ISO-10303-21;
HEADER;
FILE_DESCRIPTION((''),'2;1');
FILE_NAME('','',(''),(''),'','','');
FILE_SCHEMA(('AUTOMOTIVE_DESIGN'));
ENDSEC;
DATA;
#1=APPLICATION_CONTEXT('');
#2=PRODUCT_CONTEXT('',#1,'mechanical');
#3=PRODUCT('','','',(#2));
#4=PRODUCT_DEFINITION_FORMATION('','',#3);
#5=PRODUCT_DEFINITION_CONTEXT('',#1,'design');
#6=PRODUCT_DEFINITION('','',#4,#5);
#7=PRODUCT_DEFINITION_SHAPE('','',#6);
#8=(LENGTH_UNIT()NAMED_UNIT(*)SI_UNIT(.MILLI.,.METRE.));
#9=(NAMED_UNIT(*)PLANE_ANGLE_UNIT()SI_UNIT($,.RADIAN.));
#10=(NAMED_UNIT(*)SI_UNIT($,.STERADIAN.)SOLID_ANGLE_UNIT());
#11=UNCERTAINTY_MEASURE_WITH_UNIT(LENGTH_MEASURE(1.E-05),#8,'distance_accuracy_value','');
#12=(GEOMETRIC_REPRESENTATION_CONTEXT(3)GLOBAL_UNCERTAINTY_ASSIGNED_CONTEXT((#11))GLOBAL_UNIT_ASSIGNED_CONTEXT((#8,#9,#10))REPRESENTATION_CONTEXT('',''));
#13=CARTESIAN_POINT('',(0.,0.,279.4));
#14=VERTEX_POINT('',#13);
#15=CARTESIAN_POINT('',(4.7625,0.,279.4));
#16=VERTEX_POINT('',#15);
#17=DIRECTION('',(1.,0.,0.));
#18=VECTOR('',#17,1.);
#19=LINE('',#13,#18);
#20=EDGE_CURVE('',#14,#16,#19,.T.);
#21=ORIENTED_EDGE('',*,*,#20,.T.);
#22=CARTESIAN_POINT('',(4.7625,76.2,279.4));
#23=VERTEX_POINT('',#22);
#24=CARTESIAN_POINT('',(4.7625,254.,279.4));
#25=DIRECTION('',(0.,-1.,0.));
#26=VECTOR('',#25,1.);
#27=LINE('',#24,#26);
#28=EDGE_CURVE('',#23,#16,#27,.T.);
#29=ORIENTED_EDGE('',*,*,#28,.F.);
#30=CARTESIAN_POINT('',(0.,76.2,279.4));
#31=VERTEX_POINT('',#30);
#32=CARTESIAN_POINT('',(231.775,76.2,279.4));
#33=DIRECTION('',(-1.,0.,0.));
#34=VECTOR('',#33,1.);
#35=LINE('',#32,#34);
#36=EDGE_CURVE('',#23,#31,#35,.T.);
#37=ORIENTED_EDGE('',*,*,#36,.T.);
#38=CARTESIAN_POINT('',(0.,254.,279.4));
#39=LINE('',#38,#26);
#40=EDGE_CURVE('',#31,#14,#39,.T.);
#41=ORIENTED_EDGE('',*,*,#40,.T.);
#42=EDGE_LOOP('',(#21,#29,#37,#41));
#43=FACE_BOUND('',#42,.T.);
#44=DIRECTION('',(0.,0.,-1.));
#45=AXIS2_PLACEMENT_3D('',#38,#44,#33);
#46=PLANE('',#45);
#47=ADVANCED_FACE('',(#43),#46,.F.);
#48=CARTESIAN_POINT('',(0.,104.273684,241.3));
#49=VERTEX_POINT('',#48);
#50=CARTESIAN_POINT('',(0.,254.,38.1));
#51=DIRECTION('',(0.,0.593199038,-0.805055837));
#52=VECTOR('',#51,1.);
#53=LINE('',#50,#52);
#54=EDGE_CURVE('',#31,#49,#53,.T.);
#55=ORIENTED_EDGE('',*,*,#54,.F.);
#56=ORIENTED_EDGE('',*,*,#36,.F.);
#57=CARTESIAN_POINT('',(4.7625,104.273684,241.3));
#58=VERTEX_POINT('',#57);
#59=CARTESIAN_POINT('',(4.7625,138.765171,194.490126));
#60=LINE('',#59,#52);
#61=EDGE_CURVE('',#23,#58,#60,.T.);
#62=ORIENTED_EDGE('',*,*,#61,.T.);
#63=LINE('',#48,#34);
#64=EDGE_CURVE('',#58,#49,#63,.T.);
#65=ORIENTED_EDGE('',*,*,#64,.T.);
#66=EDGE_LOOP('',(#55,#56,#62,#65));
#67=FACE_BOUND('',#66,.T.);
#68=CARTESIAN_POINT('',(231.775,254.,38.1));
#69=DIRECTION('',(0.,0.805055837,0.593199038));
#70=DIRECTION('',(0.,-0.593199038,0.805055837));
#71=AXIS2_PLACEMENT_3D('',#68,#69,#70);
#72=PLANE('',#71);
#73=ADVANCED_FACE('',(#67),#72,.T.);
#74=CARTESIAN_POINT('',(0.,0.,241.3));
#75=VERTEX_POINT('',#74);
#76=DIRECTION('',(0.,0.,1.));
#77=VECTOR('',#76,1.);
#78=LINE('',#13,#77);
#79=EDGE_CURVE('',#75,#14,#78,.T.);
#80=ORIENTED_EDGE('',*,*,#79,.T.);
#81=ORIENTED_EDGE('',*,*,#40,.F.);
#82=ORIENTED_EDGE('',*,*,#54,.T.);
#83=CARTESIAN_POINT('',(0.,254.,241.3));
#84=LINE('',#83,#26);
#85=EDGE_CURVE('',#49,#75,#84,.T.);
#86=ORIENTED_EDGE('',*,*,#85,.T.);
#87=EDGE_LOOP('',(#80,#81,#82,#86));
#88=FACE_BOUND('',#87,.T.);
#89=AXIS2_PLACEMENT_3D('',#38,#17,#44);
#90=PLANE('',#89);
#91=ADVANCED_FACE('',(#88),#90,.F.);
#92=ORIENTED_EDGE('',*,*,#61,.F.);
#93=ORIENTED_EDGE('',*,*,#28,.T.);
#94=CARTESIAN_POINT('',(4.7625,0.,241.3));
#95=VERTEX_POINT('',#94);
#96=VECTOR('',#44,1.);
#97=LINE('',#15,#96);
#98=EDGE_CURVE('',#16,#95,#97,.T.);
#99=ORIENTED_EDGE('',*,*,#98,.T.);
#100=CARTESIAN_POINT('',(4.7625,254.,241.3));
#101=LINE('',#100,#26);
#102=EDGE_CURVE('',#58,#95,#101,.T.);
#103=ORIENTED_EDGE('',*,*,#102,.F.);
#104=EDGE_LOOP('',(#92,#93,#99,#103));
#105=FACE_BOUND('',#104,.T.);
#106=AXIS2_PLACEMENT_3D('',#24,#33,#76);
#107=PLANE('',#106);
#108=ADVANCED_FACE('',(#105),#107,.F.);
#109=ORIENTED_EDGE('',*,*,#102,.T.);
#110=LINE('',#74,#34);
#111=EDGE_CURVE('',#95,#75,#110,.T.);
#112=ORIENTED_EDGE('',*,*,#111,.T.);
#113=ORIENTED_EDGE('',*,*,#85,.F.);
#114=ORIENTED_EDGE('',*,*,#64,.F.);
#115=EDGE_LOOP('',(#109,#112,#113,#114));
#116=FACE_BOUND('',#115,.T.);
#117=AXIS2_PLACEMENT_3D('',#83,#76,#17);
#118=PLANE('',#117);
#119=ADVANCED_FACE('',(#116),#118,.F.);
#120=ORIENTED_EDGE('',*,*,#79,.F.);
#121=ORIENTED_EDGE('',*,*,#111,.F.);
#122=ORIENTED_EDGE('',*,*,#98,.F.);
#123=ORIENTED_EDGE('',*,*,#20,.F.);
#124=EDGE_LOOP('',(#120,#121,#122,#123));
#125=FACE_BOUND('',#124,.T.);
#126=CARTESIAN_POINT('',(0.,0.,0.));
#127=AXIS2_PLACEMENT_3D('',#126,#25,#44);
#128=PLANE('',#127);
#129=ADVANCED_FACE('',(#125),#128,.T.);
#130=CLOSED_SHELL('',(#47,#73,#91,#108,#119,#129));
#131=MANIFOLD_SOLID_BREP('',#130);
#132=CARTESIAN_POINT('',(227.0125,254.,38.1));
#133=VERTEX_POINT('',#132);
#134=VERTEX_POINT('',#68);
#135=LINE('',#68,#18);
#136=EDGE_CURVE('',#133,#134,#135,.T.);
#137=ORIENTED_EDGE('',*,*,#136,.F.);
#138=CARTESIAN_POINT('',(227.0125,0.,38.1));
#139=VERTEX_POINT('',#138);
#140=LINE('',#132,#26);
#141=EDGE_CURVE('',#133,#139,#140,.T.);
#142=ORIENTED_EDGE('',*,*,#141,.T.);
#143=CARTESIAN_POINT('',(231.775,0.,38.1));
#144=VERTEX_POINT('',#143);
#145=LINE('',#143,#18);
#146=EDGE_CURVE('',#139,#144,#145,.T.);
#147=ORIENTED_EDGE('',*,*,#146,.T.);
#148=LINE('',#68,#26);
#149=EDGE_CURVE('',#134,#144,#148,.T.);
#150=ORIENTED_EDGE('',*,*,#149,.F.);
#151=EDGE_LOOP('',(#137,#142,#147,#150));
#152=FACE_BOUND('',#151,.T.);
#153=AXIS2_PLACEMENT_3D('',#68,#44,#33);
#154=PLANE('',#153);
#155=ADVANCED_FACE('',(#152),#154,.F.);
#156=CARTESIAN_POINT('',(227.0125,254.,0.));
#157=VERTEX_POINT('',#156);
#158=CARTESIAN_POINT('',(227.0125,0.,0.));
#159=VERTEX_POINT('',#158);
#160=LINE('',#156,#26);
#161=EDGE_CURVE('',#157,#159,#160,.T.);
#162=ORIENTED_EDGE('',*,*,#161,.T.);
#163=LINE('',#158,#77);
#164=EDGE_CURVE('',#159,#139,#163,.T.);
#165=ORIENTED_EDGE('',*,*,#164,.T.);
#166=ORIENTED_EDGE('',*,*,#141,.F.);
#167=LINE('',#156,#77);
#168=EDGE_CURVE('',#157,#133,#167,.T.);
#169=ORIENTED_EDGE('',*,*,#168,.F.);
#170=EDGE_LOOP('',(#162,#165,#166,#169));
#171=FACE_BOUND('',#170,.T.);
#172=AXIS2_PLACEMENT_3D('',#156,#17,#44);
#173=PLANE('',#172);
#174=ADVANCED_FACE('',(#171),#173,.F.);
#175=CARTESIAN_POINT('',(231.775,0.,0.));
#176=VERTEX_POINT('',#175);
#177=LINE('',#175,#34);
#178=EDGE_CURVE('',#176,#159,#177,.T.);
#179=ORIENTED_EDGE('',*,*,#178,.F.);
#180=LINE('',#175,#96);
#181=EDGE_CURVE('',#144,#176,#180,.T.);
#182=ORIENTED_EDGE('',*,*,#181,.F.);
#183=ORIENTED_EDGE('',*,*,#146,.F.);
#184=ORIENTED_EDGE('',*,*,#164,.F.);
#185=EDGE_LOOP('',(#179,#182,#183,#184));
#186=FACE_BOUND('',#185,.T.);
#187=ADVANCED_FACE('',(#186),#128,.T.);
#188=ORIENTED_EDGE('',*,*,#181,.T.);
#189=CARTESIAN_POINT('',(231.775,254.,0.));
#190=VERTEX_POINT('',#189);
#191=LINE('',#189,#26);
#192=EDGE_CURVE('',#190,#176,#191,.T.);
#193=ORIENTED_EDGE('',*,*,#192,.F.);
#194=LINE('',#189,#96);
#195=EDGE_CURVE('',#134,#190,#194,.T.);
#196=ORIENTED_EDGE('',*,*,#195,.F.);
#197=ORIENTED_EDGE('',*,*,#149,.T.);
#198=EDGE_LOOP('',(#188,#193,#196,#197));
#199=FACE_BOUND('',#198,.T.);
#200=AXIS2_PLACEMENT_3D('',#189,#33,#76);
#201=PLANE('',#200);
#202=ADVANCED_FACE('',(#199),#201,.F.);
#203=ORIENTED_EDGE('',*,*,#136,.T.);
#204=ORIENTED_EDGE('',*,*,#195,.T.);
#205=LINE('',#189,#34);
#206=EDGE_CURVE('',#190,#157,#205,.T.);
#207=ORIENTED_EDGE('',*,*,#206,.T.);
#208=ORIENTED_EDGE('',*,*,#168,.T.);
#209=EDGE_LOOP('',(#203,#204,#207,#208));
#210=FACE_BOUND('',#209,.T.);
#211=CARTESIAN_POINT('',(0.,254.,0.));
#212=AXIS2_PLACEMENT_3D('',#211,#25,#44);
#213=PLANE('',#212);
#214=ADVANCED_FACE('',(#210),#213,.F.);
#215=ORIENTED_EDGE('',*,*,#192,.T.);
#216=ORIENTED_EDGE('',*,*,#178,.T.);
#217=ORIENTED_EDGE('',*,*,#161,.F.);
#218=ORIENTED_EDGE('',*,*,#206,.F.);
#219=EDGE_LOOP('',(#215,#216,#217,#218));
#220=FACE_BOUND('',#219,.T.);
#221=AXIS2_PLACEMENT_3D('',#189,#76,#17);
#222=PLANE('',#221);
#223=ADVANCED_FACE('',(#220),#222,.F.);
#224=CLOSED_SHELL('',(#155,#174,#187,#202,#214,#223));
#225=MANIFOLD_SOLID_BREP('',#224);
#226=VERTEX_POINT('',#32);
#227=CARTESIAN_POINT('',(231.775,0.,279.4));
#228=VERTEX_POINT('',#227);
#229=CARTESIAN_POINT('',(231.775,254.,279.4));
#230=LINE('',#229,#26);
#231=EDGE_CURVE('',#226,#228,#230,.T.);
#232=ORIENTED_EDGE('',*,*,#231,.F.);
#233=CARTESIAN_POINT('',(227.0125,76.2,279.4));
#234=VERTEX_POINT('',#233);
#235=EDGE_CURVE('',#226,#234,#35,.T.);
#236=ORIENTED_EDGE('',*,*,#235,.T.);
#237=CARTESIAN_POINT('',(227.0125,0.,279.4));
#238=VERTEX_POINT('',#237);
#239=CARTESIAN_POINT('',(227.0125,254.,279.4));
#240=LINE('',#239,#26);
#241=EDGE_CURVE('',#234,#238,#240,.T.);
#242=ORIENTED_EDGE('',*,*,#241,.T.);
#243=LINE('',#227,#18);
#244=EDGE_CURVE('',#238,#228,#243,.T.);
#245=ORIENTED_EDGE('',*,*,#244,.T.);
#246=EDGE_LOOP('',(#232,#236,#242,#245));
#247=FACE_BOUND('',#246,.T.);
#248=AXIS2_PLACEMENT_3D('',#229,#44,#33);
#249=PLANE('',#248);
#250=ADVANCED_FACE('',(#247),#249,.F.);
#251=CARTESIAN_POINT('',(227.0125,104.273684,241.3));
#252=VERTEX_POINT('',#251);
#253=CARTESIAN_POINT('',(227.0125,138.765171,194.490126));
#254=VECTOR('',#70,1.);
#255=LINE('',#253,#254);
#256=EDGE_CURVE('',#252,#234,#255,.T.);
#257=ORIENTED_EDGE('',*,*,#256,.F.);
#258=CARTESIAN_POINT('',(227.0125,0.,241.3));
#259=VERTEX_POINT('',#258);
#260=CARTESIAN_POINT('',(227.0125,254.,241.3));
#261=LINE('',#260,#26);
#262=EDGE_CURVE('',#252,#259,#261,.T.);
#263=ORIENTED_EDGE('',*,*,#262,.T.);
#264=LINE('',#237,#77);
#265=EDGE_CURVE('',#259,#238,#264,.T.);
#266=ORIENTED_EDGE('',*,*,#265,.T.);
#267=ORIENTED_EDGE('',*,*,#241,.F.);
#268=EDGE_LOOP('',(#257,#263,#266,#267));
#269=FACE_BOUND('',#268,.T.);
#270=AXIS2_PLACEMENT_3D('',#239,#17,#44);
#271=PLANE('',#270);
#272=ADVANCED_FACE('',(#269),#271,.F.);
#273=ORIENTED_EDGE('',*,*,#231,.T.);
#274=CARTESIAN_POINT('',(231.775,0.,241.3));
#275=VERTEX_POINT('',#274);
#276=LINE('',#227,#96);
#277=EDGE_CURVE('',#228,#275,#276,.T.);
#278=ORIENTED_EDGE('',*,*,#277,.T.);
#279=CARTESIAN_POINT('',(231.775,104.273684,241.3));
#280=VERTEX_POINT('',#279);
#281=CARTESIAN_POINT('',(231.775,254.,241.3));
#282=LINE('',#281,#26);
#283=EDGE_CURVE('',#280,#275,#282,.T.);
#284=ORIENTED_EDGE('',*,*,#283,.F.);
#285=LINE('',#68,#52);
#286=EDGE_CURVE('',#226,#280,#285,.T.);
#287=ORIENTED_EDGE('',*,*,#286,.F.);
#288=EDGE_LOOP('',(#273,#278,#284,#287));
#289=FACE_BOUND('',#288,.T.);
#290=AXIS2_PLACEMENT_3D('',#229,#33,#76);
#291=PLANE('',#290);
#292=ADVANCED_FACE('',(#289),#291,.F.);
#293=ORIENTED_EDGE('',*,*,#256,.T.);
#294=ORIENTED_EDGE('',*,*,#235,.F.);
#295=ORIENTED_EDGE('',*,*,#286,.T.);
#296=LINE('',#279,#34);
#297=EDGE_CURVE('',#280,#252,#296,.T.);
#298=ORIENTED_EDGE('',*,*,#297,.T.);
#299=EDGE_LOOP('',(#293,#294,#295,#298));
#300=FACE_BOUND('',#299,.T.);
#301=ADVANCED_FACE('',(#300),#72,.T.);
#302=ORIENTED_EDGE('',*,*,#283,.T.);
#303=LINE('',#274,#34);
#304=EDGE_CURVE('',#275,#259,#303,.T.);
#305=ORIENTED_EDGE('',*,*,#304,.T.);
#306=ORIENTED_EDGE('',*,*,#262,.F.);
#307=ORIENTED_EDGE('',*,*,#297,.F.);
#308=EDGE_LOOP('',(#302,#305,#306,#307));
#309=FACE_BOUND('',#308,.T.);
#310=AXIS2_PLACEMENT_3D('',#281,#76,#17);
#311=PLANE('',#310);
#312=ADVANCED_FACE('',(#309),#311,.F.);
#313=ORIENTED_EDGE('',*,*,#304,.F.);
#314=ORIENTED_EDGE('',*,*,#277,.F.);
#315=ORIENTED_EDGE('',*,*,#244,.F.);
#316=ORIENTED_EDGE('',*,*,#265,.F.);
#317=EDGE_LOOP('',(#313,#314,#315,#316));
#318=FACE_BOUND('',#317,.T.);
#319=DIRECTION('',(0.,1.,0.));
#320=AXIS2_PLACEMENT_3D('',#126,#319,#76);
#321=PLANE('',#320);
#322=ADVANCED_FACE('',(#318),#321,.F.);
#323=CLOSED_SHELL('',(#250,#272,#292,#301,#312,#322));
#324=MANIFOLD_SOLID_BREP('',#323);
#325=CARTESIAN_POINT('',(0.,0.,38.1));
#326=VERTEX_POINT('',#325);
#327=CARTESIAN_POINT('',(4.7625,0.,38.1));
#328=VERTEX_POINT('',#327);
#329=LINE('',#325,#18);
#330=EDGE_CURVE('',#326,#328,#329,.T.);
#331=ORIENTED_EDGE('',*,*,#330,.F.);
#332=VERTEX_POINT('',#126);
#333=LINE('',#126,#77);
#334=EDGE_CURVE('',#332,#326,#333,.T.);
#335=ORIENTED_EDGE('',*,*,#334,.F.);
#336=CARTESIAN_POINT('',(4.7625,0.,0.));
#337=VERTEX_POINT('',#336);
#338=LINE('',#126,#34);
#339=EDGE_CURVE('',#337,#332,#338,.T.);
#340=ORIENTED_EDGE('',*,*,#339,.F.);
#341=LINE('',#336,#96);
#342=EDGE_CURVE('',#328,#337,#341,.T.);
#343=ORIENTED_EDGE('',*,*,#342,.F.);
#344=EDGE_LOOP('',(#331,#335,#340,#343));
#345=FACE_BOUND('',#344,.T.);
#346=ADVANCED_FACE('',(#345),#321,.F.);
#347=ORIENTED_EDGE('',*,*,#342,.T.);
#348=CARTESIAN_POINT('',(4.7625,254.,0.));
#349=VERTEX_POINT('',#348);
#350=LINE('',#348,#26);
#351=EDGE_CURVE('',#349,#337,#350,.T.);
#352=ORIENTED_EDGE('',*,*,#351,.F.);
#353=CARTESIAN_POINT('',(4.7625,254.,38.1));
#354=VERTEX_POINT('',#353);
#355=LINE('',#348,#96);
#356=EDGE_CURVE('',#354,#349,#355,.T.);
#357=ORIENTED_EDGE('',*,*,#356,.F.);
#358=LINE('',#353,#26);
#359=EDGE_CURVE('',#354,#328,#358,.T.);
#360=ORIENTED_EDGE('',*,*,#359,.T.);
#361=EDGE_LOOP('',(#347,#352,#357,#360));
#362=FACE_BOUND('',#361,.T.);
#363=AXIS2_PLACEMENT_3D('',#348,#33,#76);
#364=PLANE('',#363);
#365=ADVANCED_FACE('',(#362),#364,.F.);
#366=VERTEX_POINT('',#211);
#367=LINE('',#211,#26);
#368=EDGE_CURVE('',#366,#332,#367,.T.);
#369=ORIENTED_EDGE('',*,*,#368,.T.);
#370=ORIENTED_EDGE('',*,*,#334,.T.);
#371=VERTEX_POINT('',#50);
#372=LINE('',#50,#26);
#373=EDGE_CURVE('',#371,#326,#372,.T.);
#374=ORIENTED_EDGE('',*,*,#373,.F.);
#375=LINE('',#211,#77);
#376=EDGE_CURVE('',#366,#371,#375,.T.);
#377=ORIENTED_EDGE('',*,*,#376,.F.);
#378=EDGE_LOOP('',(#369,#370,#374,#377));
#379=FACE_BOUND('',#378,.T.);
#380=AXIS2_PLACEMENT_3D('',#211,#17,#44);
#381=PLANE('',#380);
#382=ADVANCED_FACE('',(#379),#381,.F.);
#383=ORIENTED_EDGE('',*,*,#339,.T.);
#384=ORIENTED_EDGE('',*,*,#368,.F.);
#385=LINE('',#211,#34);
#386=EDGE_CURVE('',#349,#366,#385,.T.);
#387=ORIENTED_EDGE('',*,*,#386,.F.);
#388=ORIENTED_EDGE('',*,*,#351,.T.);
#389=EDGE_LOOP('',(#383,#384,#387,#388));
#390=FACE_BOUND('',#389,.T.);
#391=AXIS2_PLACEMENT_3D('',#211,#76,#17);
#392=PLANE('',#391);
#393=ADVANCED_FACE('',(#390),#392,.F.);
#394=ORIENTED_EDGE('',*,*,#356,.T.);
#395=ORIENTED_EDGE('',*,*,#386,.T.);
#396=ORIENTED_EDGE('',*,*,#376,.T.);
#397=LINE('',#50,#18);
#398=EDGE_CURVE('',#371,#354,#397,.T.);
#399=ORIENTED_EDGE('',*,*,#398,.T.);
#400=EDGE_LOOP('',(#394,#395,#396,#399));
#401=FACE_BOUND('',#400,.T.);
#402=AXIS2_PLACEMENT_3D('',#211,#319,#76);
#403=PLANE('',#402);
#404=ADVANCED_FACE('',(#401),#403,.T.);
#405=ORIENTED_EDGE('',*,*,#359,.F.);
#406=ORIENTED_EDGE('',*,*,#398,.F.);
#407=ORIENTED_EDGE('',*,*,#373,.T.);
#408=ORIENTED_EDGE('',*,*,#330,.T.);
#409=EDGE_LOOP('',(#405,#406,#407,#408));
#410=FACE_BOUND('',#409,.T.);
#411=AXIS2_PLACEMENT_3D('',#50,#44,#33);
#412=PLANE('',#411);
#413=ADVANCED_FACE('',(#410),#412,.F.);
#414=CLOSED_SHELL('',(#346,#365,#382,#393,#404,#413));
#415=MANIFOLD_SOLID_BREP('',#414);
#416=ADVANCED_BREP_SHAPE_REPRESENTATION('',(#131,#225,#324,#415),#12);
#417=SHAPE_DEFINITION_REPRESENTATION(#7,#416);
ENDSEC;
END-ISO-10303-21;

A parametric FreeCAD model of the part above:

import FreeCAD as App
import Part
import Sketcher
from FreeCAD import Vector
Q = App.Units.Quantity

doc = App.newDocument("Part")
body = doc.addObject("PartDesign::Body", "Body")

# Sketch on XZ plane
sketch1 = body.newObject("Sketcher::SketchObject", "Sketch")
sketch1.AttachmentSupport = (doc.getObject("XZ_Plane"), [""])
sketch1.MapMode = "FlatFace"
sketch1.addGeometry(Part.LineSegment(Vector(0, 0, 0), Vector(0, 38.1, 0)), False)
sketch1.addGeometry(Part.LineSegment(Vector(0, 38.1, 0), Vector(4.8, 38.1, 0)), False)
sketch1.addGeometry(Part.LineSegment(Vector(4.8, 38.1, 0), Vector(4.8, 0, 0)), False)
sketch1.addGeometry(Part.LineSegment(Vector(4.8, 0, 0), Vector(0, 0, 0)), False)
sketch1.addConstraint(Sketcher.Constraint("Coincident", 0, 2, 1, 1))
sketch1.addConstraint(Sketcher.Constraint("Coincident", 1, 2, 2, 1))
sketch1.addConstraint(Sketcher.Constraint("Coincident", 2, 2, 3, 1))
sketch1.addConstraint(Sketcher.Constraint("Coincident", 3, 2, 0, 1))
sketch1.addConstraint(Sketcher.Constraint("Vertical", 0))
sketch1.addConstraint(Sketcher.Constraint("Horizontal", 1))
sketch1.addConstraint(Sketcher.Constraint("Vertical", 2))
sketch1.addConstraint(Sketcher.Constraint("Horizontal", 3))
sketch1.addConstraint(Sketcher.Constraint("Coincident", 3, 2, -1, 1))
sketch1.addConstraint(Sketcher.Constraint("DistanceY", 0, 1, 0, 2, Q("1.5 in")))
sketch1.addConstraint(Sketcher.Constraint("DistanceX", 1, 1, 1, 2, Q("0.1875 in")))
pad1 = body.newObject("PartDesign::Pad", "Pad")
pad1.Profile = sketch1
pad1.Length = Q("10 in")
pad1.Reversed = True
body2 = doc.addObject("PartDesign::Body", "Body001")

# Sketch on XZ plane
sketch2 = body2.newObject("Sketcher::SketchObject", "Sketch001")
sketch2.AttachmentSupport = (doc.getObject("XZ_Plane001"), [""])
sketch2.MapMode = "FlatFace"
sketch2.addGeometry(Part.LineSegment(Vector(227, 0, 0), Vector(227, 38.1, 0)), False)
sketch2.addGeometry(Part.LineSegment(Vector(227, 38.1, 0), Vector(231.8, 38.1, 0)), False)
sketch2.addGeometry(Part.LineSegment(Vector(231.8, 38.1, 0), Vector(231.8, 0, 0)), False)
sketch2.addGeometry(Part.LineSegment(Vector(231.8, 0, 0), Vector(227, 0, 0)), False)
sketch2.addConstraint(Sketcher.Constraint("Coincident", 0, 2, 1, 1))
sketch2.addConstraint(Sketcher.Constraint("Coincident", 1, 2, 2, 1))
sketch2.addConstraint(Sketcher.Constraint("Coincident", 2, 2, 3, 1))
sketch2.addConstraint(Sketcher.Constraint("Coincident", 3, 2, 0, 1))
sketch2.addConstraint(Sketcher.Constraint("Vertical", 0))
sketch2.addConstraint(Sketcher.Constraint("Horizontal", 1))
sketch2.addConstraint(Sketcher.Constraint("Vertical", 2))
sketch2.addConstraint(Sketcher.Constraint("Horizontal", 3))
sketch2.addConstraint(Sketcher.Constraint("PointOnObject", 2, 2, -1))
sketch2.addConstraint(Sketcher.Constraint("DistanceY", 0, 1, 0, 2, Q("1.5 in")))
sketch2.addConstraint(Sketcher.Constraint("DistanceX", 1, 1, 1, 2, Q("0.1875 in")))
sketch2.addConstraint(Sketcher.Constraint("DistanceX", -1, 1, 0, 2, Q("8.9375 in")))
pad2 = body2.newObject("PartDesign::Pad", "Pad001")
pad2.Profile = sketch2
pad2.Length = Q("10 in")
pad2.Reversed = True
body3 = doc.addObject("PartDesign::Body", "Body002")

# Sketch on XZ plane
sketch3 = body3.newObject("Sketcher::SketchObject", "Sketch002")
sketch3.AttachmentSupport = (doc.getObject("XZ_Plane002"), [""])
sketch3.MapMode = "FlatFace"
sketch3.addGeometry(Part.LineSegment(Vector(0, 241.3, 0), Vector(0, 279.4, 0)), False)
sketch3.addGeometry(Part.LineSegment(Vector(0, 279.4, 0), Vector(4.8, 279.4, 0)), False)
sketch3.addGeometry(Part.LineSegment(Vector(4.8, 279.4, 0), Vector(4.8, 241.3, 0)), False)
sketch3.addGeometry(Part.LineSegment(Vector(4.8, 241.3, 0), Vector(0, 241.3, 0)), False)
sketch3.addConstraint(Sketcher.Constraint("Coincident", 0, 2, 1, 1))
sketch3.addConstraint(Sketcher.Constraint("Coincident", 1, 2, 2, 1))
sketch3.addConstraint(Sketcher.Constraint("Coincident", 2, 2, 3, 1))
sketch3.addConstraint(Sketcher.Constraint("Coincident", 3, 2, 0, 1))
sketch3.addConstraint(Sketcher.Constraint("Vertical", 0))
sketch3.addConstraint(Sketcher.Constraint("Horizontal", 1))
sketch3.addConstraint(Sketcher.Constraint("Vertical", 2))
sketch3.addConstraint(Sketcher.Constraint("Horizontal", 3))
sketch3.addConstraint(Sketcher.Constraint("PointOnObject", 0, 2, -2))
sketch3.addConstraint(Sketcher.Constraint("DistanceY", 0, 1, 0, 2, Q("1.5 in")))
sketch3.addConstraint(Sketcher.Constraint("DistanceY", -1, 1, 0, 2, Q("11 in")))
sketch3.addConstraint(Sketcher.Constraint("DistanceX", 1, 1, 1, 2, Q("0.1875 in")))
pad3 = body3.newObject("PartDesign::Pad", "Pad002")
pad3.Profile = sketch3
pad3.Length = Q("10 in")
pad3.Reversed = True
body4 = doc.addObject("PartDesign::Body", "Body003")

# Sketch on XZ plane
sketch4 = body4.newObject("Sketcher::SketchObject", "Sketch003")
sketch4.AttachmentSupport = (doc.getObject("XZ_Plane003"), [""])
sketch4.MapMode = "FlatFace"
sketch4.addGeometry(Part.LineSegment(Vector(227, 241.3, 0), Vector(227, 279.4, 0)), False)
sketch4.addGeometry(Part.LineSegment(Vector(227, 279.4, 0), Vector(231.8, 279.4, 0)), False)
sketch4.addGeometry(Part.LineSegment(Vector(231.8, 279.4, 0), Vector(231.8, 241.3, 0)), False)
sketch4.addGeometry(Part.LineSegment(Vector(231.8, 241.3, 0), Vector(227, 241.3, 0)), False)
sketch4.addConstraint(Sketcher.Constraint("Coincident", 0, 2, 1, 1))
sketch4.addConstraint(Sketcher.Constraint("Coincident", 1, 2, 2, 1))
sketch4.addConstraint(Sketcher.Constraint("Coincident", 2, 2, 3, 1))
sketch4.addConstraint(Sketcher.Constraint("Coincident", 3, 2, 0, 1))
sketch4.addConstraint(Sketcher.Constraint("Vertical", 0))
sketch4.addConstraint(Sketcher.Constraint("Horizontal", 1))
sketch4.addConstraint(Sketcher.Constraint("Vertical", 2))
sketch4.addConstraint(Sketcher.Constraint("Horizontal", 3))
sketch4.addConstraint(Sketcher.Constraint("DistanceY", 0, 1, 0, 2, Q("1.5 in")))
sketch4.addConstraint(Sketcher.Constraint("DistanceY", -1, 1, 0, 2, Q("11 in")))
sketch4.addConstraint(Sketcher.Constraint("DistanceX", 1, 1, 1, 2, Q("0.1875 in")))
sketch4.addConstraint(Sketcher.Constraint("DistanceX", -1, 1, 0, 2, Q("8.9375 in")))
pad4 = body4.newObject("PartDesign::Pad", "Pad003")
pad4.Profile = sketch4
pad4.Length = Q("10 in")
pad4.Reversed = True
body5 = doc.addObject("PartDesign::Body", "Body004")

# Sketch on YZ plane
sketch5 = body5.newObject("Sketcher::SketchObject", "Sketch004")
sketch5.AttachmentSupport = (doc.getObject("YZ_Plane004"), [""])
sketch5.MapMode = "FlatFace"
sketch5.addGeometry(Part.LineSegment(Vector(254, 279, 0), Vector(76, 279, 0)), False)
sketch5.addGeometry(Part.LineSegment(Vector(76, 279, 0), Vector(254, 38, 0)), False)
sketch5.addGeometry(Part.LineSegment(Vector(254, 38, 0), Vector(254, 279, 0)), False)
sketch5.addConstraint(Sketcher.Constraint("Coincident", 0, 2, 1, 1))
sketch5.addConstraint(Sketcher.Constraint("Coincident", 1, 2, 2, 1))
sketch5.addConstraint(Sketcher.Constraint("Coincident", 2, 2, 0, 1))
sketch5.addConstraint(Sketcher.Constraint("Horizontal", 0))
sketch5.addConstraint(Sketcher.Constraint("Vertical", 2))
sketch5.addConstraint(Sketcher.Constraint("DistanceX", 0, 2, 0, 1, Q("7 in")))
sketch5.addConstraint(Sketcher.Constraint("DistanceY", 2, 1, 2, 2, Q("9.5 in")))
sketch5.addConstraint(Sketcher.Constraint("DistanceX", -1, 1, 0, 2, Q("3 in")))
sketch5.addConstraint(Sketcher.Constraint("DistanceY", -1, 1, 0, 2, Q("11 in")))
pad5 = body5.newObject("PartDesign::Pad", "Pad004")
pad5.Profile = sketch5
pad5.Length = 444.05757
doc.recompute()

body6 = doc.addObject("PartDesign::Body", "Body005")
body6.BaseFeature = body5
boolean = body3.newObject("PartDesign::Boolean", "Boolean")
boolean.Type = "Cut"
boolean.addObjects([body6])
doc.recompute()

boolean2 = body4.newObject("PartDesign::Boolean", "Boolean001")
boolean2.Type = "Cut"
boolean2.addObjects([body5])

doc.recompute()
